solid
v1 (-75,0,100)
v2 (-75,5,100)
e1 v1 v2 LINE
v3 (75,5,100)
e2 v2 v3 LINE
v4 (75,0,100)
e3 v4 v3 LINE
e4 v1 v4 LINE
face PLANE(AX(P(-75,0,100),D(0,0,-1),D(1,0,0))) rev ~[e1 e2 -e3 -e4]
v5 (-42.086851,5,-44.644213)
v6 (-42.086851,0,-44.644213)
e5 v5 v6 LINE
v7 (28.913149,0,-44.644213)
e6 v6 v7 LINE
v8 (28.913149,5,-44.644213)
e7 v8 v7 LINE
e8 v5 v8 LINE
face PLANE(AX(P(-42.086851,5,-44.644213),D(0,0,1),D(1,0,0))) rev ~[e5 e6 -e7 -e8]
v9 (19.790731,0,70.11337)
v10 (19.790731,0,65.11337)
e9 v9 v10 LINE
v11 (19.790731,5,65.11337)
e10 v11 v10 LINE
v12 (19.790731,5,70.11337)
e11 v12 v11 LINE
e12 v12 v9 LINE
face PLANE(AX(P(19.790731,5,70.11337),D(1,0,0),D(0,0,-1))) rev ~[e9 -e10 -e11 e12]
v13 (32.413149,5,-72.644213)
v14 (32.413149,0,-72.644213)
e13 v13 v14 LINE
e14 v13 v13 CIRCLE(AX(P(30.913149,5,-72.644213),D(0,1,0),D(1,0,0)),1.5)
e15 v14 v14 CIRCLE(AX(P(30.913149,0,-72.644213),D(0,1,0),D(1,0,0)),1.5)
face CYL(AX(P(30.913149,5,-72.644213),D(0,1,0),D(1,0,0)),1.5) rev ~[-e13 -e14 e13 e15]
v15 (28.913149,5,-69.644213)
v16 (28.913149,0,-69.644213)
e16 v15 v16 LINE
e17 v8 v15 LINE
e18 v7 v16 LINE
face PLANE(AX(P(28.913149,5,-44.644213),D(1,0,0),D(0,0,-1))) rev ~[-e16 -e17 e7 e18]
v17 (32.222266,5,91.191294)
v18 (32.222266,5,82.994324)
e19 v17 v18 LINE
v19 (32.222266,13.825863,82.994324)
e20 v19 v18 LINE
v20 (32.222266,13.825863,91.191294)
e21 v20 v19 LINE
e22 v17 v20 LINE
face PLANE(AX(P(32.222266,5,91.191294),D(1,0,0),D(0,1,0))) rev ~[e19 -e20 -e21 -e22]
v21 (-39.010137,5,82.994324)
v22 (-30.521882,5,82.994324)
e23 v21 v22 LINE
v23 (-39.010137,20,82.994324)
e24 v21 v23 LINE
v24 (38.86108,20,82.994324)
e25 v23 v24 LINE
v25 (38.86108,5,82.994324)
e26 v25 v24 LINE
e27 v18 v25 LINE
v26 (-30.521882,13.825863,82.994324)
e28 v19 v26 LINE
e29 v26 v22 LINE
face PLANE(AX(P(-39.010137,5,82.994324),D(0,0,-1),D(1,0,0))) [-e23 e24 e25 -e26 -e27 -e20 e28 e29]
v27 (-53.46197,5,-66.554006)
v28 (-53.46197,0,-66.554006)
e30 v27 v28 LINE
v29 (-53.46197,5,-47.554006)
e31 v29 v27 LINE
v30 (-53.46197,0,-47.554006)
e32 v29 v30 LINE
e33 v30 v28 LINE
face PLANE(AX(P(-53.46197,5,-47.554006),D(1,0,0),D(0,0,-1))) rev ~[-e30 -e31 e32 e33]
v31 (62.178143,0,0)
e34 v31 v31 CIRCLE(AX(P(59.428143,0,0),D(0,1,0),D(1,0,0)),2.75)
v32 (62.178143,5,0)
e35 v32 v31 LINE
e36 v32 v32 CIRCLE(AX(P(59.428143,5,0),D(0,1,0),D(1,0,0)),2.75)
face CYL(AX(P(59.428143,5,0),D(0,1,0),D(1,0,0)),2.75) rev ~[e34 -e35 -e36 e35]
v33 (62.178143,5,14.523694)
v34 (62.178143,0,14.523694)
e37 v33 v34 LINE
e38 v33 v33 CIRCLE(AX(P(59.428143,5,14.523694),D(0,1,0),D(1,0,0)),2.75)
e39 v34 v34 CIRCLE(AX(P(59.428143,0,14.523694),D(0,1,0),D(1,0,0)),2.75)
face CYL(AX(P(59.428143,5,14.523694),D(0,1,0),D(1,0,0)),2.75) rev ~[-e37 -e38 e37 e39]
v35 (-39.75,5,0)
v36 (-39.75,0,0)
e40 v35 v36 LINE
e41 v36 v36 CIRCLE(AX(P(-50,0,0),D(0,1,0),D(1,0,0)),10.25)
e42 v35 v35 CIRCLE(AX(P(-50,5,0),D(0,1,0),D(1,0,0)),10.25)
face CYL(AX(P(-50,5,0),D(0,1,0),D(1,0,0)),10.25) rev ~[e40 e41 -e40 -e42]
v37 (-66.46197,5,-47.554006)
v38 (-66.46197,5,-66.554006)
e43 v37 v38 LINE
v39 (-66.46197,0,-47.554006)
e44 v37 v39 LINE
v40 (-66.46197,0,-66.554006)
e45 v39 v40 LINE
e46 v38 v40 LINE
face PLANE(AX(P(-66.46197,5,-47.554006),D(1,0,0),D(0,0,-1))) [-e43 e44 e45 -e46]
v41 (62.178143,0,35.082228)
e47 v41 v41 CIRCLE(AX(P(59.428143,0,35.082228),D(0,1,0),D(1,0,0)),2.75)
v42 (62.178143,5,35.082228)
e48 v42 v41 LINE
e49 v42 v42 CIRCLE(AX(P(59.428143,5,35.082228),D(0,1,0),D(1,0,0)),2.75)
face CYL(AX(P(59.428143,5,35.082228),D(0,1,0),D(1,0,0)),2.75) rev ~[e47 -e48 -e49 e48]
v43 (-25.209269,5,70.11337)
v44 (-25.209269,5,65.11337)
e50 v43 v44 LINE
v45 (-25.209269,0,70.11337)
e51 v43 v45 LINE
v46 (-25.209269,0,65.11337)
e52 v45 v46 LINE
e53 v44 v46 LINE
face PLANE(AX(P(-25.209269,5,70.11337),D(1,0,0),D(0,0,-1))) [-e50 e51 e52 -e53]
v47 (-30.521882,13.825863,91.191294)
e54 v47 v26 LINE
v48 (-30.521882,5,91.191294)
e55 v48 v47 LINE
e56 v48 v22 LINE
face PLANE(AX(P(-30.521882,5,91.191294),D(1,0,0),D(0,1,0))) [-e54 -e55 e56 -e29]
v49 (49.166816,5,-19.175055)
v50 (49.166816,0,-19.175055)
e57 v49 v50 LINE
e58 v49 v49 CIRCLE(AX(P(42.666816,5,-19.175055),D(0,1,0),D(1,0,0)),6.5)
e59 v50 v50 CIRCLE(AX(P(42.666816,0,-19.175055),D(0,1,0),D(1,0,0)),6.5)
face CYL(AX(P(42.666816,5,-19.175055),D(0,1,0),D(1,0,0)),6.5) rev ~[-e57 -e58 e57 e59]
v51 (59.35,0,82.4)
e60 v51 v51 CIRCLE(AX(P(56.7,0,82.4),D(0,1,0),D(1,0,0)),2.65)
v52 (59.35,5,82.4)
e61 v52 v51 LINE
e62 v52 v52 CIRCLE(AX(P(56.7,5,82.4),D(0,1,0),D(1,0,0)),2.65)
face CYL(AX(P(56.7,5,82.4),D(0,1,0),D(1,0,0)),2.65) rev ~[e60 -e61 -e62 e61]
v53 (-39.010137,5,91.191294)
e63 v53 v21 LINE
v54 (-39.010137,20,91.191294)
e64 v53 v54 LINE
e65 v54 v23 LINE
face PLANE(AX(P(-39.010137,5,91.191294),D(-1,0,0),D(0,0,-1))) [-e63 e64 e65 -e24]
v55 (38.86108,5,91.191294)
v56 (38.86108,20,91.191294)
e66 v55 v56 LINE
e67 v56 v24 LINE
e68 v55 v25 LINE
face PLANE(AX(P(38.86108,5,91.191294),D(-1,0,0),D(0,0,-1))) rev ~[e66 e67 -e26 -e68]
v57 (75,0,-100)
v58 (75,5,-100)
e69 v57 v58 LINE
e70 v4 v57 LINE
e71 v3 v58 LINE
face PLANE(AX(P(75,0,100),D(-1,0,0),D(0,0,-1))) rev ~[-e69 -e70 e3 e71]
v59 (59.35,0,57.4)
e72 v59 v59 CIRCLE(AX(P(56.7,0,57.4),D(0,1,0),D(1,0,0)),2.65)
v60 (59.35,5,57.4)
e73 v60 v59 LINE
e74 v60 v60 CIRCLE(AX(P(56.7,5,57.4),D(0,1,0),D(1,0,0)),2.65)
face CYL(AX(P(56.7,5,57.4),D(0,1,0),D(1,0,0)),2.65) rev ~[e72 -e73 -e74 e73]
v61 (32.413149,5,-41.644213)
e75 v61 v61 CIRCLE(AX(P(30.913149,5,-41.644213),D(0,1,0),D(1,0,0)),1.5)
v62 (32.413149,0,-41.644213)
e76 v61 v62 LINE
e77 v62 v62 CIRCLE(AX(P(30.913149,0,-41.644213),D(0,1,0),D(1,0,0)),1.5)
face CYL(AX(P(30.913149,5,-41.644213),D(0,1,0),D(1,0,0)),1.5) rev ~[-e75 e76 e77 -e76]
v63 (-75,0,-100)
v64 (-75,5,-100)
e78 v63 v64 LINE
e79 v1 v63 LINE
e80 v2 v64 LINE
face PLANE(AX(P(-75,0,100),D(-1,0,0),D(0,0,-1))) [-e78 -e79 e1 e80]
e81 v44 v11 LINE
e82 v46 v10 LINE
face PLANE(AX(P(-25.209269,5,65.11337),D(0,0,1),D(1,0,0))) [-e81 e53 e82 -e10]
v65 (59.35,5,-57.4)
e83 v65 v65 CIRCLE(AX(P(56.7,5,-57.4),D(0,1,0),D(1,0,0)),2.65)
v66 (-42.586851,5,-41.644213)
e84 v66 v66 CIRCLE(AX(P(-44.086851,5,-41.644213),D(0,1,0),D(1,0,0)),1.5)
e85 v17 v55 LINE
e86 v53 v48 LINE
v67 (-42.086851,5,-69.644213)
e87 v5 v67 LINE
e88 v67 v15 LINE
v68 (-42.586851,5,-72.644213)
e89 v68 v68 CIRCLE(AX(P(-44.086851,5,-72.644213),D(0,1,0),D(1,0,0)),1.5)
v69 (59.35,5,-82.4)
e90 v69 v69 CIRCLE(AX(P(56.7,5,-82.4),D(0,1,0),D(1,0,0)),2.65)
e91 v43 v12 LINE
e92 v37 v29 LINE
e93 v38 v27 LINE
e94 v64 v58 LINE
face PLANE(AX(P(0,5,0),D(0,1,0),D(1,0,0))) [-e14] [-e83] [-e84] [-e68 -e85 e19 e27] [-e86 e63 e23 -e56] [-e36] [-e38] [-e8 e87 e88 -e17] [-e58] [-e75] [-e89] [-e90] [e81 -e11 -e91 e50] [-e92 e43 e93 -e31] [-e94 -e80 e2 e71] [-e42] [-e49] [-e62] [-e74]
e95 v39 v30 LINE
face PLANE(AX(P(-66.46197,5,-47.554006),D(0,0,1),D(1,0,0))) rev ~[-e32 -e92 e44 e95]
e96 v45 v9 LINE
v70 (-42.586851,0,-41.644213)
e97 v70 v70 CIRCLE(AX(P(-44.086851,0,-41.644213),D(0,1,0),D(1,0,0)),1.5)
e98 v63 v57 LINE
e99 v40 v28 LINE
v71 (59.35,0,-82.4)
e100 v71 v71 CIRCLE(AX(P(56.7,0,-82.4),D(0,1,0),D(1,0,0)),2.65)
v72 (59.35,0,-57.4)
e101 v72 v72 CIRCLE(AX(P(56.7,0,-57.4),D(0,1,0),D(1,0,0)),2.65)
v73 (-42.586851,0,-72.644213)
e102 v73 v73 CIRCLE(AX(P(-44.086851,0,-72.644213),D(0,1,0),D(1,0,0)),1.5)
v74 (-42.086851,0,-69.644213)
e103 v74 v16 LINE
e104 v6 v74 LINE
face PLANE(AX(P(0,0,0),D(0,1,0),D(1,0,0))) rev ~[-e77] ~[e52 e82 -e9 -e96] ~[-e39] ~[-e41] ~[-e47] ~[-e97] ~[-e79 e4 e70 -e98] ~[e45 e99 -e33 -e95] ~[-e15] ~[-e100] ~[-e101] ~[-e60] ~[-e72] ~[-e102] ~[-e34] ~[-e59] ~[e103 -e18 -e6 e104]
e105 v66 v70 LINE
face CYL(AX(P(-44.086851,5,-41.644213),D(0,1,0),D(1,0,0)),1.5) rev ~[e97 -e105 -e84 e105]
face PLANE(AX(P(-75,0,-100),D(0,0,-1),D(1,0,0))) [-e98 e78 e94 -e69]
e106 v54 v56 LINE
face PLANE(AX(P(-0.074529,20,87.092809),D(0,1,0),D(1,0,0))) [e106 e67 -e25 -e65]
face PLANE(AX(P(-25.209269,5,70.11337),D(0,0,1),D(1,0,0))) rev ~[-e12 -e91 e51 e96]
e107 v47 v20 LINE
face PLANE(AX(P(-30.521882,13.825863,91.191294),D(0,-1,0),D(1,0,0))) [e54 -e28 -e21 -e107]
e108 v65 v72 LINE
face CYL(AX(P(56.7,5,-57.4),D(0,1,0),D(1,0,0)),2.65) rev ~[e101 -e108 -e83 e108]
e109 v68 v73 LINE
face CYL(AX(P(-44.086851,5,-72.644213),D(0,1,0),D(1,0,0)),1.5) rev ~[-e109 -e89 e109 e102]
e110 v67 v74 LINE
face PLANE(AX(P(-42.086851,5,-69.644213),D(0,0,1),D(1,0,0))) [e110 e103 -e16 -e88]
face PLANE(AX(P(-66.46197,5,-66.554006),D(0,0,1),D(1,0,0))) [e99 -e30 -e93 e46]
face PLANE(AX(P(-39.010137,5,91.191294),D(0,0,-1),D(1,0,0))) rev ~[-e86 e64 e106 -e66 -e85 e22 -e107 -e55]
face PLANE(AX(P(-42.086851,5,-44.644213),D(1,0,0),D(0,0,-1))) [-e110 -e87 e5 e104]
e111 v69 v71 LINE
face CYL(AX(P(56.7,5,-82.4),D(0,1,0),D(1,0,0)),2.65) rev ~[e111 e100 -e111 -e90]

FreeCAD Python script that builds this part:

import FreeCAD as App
import Part
import Sketcher

V = App.Vector

doc = App.newDocument("Part")
body = doc.addObject("PartDesign::Body", "Body")

# Sketch on XZ plane
sketch1 = body.newObject("Sketcher::SketchObject", "Sketch")
sketch1.AttachmentSupport = (doc.getObject("XZ_Plane"), [""])
sketch1.MapMode = "FlatFace"
sketch1.addGeometry([
    Part.LineSegment(V(-75, -100, 0), V(-75, 100, 0)),
    Part.LineSegment(V(-75, 100, 0), V(75, 100, 0)),
    Part.LineSegment(V(75, 100, 0), V(75, -100, 0)),
    Part.LineSegment(V(75, -100, 0), V(-75, -100, 0)),
], False)
sketch1.addConstraint([
    Sketcher.Constraint("Coincident", 0, 2, 1, 1),
    Sketcher.Constraint("Coincident", 1, 2, 2, 1),
    Sketcher.Constraint("Coincident", 2, 2, 3, 1),
    Sketcher.Constraint("Coincident", 3, 2, 0, 1),
    Sketcher.Constraint("Vertical", 0),
    Sketcher.Constraint("Horizontal", 1),
    Sketcher.Constraint("Vertical", 2),
    Sketcher.Constraint("Horizontal", 3),
    Sketcher.Constraint("Symmetric", 0, 2, 2, 2, -1, 1),
    Sketcher.Constraint("DistanceX", 1, 1, 1, 2, 150.0),
    Sketcher.Constraint("DistanceY", 0, 1, 0, 2, 200.0),
])
pad1 = body.newObject("PartDesign::Pad", "Pad")
pad1.Profile = sketch1
pad1.Length = 5
pad1.Reversed = True

# Sketch on XZ plane
sketch2 = body.newObject("Sketcher::SketchObject", "Sketch001")
sketch2.AttachmentSupport = (doc.getObject("XZ_Plane"), [""])
sketch2.MapMode = "FlatFace"
sketch2.AttachmentOffset = App.Placement(V(0, 0, -5), App.Rotation())
sketch2.addGeometry(Part.Circle(V(-50, 0, 0), V(0, 0, 1), 10), False)
sketch2.addConstraint([
    Sketcher.Constraint("PointOnObject", 0, 3, -1),
    Sketcher.Constraint("Diameter", 0, 20.5),
    Sketcher.Constraint("DistanceX", 0, 3, -1, 1, 50.0),
])
pocket1 = body.newObject("PartDesign::Pocket", "Pocket")
pocket1.Profile = sketch2
pocket1.Type = "UpToFirst"
pocket1.Reversed = True

# Sketch on XZ plane
sketch3 = body.newObject("Sketcher::SketchObject", "Sketch002")
sketch3.AttachmentSupport = (doc.getObject("XZ_Plane"), [""])
sketch3.MapMode = "FlatFace"
sketch3.AttachmentOffset = App.Placement(V(0, 0, -5), App.Rotation())
sketch3.addGeometry(Part.Circle(V(56.7, -82.4, 0), V(0, 0, 1), 2.6), False)
sketch3.addConstraint([
    Sketcher.Constraint("Diameter", 0, 5.3),
    Sketcher.Constraint("DistanceX", -1, 1, 0, 3, 56.7),
    Sketcher.Constraint("DistanceY", 0, 3, -1, 1, 82.4),
])
pocket2 = body.newObject("PartDesign::Pocket", "Pocket001")
pocket2.Profile = sketch3
pocket2.Type = "UpToFirst"
pocket2.Reversed = True

# Sketch on XZ plane
sketch4 = body.newObject("Sketcher::SketchObject", "Sketch003")
sketch4.AttachmentSupport = (doc.getObject("XZ_Plane"), [""])
sketch4.MapMode = "FlatFace"
sketch4.AttachmentOffset = App.Placement(V(0, 0, -5), App.Rotation())
sketch4.addGeometry(Part.Circle(V(56.7, -57.4, 0), V(0, 0, 1), 2.6), False)
sketch4.addConstraint([
    Sketcher.Constraint("Diameter", 0, 5.3),
    Sketcher.Constraint("DistanceX", -1, 1, 0, 3, 56.7),
    Sketcher.Constraint("DistanceY", 0, 3, -1, 1, 57.4),
])
pocket3 = body.newObject("PartDesign::Pocket", "Pocket002")
pocket3.Profile = sketch4
pocket3.Type = "UpToFirst"
pocket3.Reversed = True

# Sketch on XZ plane
sketch5 = body.newObject("Sketcher::SketchObject", "Sketch004")
sketch5.AttachmentSupport = (doc.getObject("XZ_Plane"), [""])
sketch5.MapMode = "FlatFace"
sketch5.AttachmentOffset = App.Placement(V(0, 0, -5), App.Rotation())
sketch5.addGeometry(Part.Circle(V(56.7, 57.4, 0), V(0, 0, 1), 2.6), False)
sketch5.addConstraint([
    Sketcher.Constraint("Diameter", 0, 5.3),
    Sketcher.Constraint("DistanceX", -1, 1, 0, 3, 56.7),
    Sketcher.Constraint("DistanceY", -1, 1, 0, 3, 57.4),
])
pocket4 = body.newObject("PartDesign::Pocket", "Pocket003")
pocket4.Profile = sketch5
pocket4.Type = "UpToFirst"
pocket4.Reversed = True

# Sketch on XZ plane
sketch6 = body.newObject("Sketcher::SketchObject", "Sketch005")
sketch6.AttachmentSupport = (doc.getObject("XZ_Plane"), [""])
sketch6.MapMode = "FlatFace"
sketch6.AttachmentOffset = App.Placement(V(0, 0, -5), App.Rotation())
sketch6.addGeometry(Part.Circle(V(56.7, 82.4, 0), V(0, 0, 1), 2.6), False)
sketch6.addConstraint([
    Sketcher.Constraint("Diameter", 0, 5.3),
    Sketcher.Constraint("DistanceX", -1, 1, 0, 3, 56.7),
    Sketcher.Constraint("DistanceY", -1, 1, 0, 3, 82.4),
])
pocket5 = body.newObject("PartDesign::Pocket", "Pocket004")
pocket5.Profile = sketch6
pocket5.Type = "UpToFirst"
pocket5.Reversed = True

# Sketch on XZ plane
sketch7 = body.newObject("Sketcher::SketchObject", "Sketch006")
sketch7.AttachmentSupport = (doc.getObject("XZ_Plane"), [""])
sketch7.MapMode = "FlatFace"
sketch7.AttachmentOffset = App.Placement(V(0, 0, -5), App.Rotation())
sketch7.addGeometry([
    Part.Circle(V(-44.1, -72.6, 0), V(0, 0, 1), 1.5),  # 0
    Part.Circle(V(-44.1, -41.6, 0), V(0, 0, 1), 1.5),  # 1
    Part.Circle(V(30.9, -72.6, 0), V(0, 0, 1), 1.5),  # 2
    Part.Circle(V(30.9, -41.6, 0), V(0, 0, 1), 1.5),  # 3
    Part.Circle(V(42.7, -19.2, 0), V(0, 0, 1), 6.5),  # 4
    Part.Circle(V(59.4, 0, 0), V(0, 0, 1), 2.8),  # 5
    Part.Circle(V(59.4, 14.5, 0), V(0, 0, 1), 2.8),  # 6
    Part.Circle(V(59.4, 35.1, 0), V(0, 0, 1), 2.8),  # 7
    Part.LineSegment(V(-42.1, -69.6, 0), V(-42.1, -44.6, 0)),  # 8
    Part.LineSegment(V(-42.1, -44.6, 0), V(28.9, -44.6, 0)),  # 9
    Part.LineSegment(V(28.9, -44.6, 0), V(28.9, -69.6, 0)),  # 10
    Part.LineSegment(V(28.9, -69.6, 0), V(-42.1, -69.6, 0)),  # 11
    Part.LineSegment(V(-25.2, 65.1, 0), V(-25.2, 70.1, 0)),  # 12
    Part.LineSegment(V(-25.2, 70.1, 0), V(19.8, 70.1, 0)),  # 13
    Part.LineSegment(V(19.8, 70.1, 0), V(19.8, 65.1, 0)),  # 14
    Part.LineSegment(V(19.8, 65.1, 0), V(-25.2, 65.1, 0)),  # 15
    Part.LineSegment(V(-66.5, -66.6, 0), V(-66.5, -47.6, 0)),  # 16
    Part.LineSegment(V(-66.5, -47.6, 0), V(-53.5, -47.6, 0)),  # 17
    Part.LineSegment(V(-53.5, -47.6, 0), V(-53.5, -66.6, 0)),  # 18
    Part.LineSegment(V(-53.5, -66.6, 0), V(-66.5, -66.6, 0)),  # 19
], False)
sketch7.addConstraint([
    Sketcher.Constraint("Coincident", 8, 2, 9, 1),
    Sketcher.Constraint("Coincident", 9, 2, 10, 1),
    Sketcher.Constraint("Coincident", 10, 2, 11, 1),
    Sketcher.Constraint("Coincident", 11, 2, 8, 1),
    Sketcher.Constraint("Coincident", 12, 2, 13, 1),
    Sketcher.Constraint("Coincident", 13, 2, 14, 1),
    Sketcher.Constraint("Coincident", 14, 2, 15, 1),
    Sketcher.Constraint("Coincident", 15, 2, 12, 1),
    Sketcher.Constraint("Coincident", 16, 2, 17, 1),
    Sketcher.Constraint("Coincident", 17, 2, 18, 1),
    Sketcher.Constraint("Coincident", 18, 2, 19, 1),
    Sketcher.Constraint("Coincident", 19, 2, 16, 1),
    Sketcher.Constraint("Vertical", 8),
    Sketcher.Constraint("Horizontal", 9),
    Sketcher.Constraint("Vertical", 10),
    Sketcher.Constraint("Horizontal", 11),
    Sketcher.Constraint("Vertical", 12),
    Sketcher.Constraint("Horizontal", 13),
    Sketcher.Constraint("Vertical", 14),
    Sketcher.Constraint("Horizontal", 15),
    Sketcher.Constraint("Vertical", 16),
    Sketcher.Constraint("Horizontal", 17),
    Sketcher.Constraint("Vertical", 18),
    Sketcher.Constraint("Horizontal", 19),
    Sketcher.Constraint("Equal", 0, 1),
    Sketcher.Constraint("Equal", 1, 2),
    Sketcher.Constraint("Equal", 2, 3),
    Sketcher.Constraint("Equal", 5, 6),
    Sketcher.Constraint("Equal", 6, 7),
    Sketcher.Constraint("PointOnObject", 5, 3, -1),
    Sketcher.Constraint("Horizontal", 0, 3, 2, 3),
    Sketcher.Constraint("Horizontal", 1, 3, 3, 3),
    Sketcher.Constraint("Vertical", 0, 3, 1, 3),
    Sketcher.Constraint("Vertical", 2, 3, 3, 3),
    Sketcher.Constraint("Vertical", 5, 3, 6, 3),
    Sketcher.Constraint("Vertical", 6, 3, 7, 3),
    Sketcher.Constraint("Diameter", 0, 3.0),
    Sketcher.Constraint("Diameter", 4, 13.0),
    Sketcher.Constraint("Diameter", 5, 5.5),
    Sketcher.Constraint("DistanceX", 9, 1, 9, 2, 71.0),
    Sketcher.Constraint("DistanceX", 13, 1, 13, 2, 45.0),
    Sketcher.Constraint("DistanceX", 17, 1, 17, 2, 13.0),
    Sketcher.Constraint("DistanceY", 8, 1, 8, 2, 25.0),
    Sketcher.Constraint("DistanceY", 12, 1, 12, 2, 5.0),
    Sketcher.Constraint("DistanceY", 16, 1, 16, 2, 19.0),
    Sketcher.Constraint("DistanceY", 0, 3, 1, 3, 31.0),
    Sketcher.Constraint("DistanceX", 0, 3, 2, 3, 75.0),
    Sketcher.Constraint("DistanceX", 1, 3, 8, 2, 2.0),
    Sketcher.Constraint("DistanceY", 8, 2, 1, 3, 3.0),
    Sketcher.Constraint("DistanceX", 0, 3, -1, 1, 44.086851),
    Sketcher.Constraint("DistanceX", 12, 2, -1, 1, 25.209269),
    Sketcher.Constraint("DistanceY", -1, 1, 12, 2, 70.11337),
    Sketcher.Constraint("DistanceX", 16, 2, -1, 1, 66.46197),
    Sketcher.Constraint("DistanceY", 4, 3, 6, 3, 33.698749),
    Sketcher.Constraint("DistanceY", 3, 3, 7, 3, 76.726441),
    Sketcher.Constraint("DistanceY", 0, 3, -1, 1, 72.644213),
    Sketcher.Constraint("DistanceX", -1, 1, 4, 3, 42.666816),
    Sketcher.Constraint("DistanceY", 4, 3, -1, 1, 19.175055),
    Sketcher.Constraint("DistanceX", -1, 1, 5, 3, 59.428143),
    Sketcher.Constraint("DistanceY", 16, 2, -1, 1, 47.554006),
])
pocket6 = body.newObject("PartDesign::Pocket", "Pocket005")
pocket6.Profile = sketch7
pocket6.Length = 10
pocket6.Reversed = True

# Sketch on XZ plane
sketch8 = body.newObject("Sketcher::SketchObject", "Sketch007")
sketch8.AttachmentSupport = (doc.getObject("XZ_Plane"), [""])
sketch8.MapMode = "FlatFace"
sketch8.AttachmentOffset = App.Placement(V(0, 0, -5), App.Rotation())
sketch8.addGeometry([
    Part.LineSegment(V(-39, 83, 0), V(-39, 91, 0)),
    Part.LineSegment(V(-39, 91, 0), V(39, 91, 0)),
    Part.LineSegment(V(39, 91, 0), V(39, 83, 0)),
    Part.LineSegment(V(39, 83, 0), V(-39, 83, 0)),
], False)
sketch8.addConstraint([
    Sketcher.Constraint("Coincident", 0, 2, 1, 1),
    Sketcher.Constraint("Coincident", 1, 2, 2, 1),
    Sketcher.Constraint("Coincident", 2, 2, 3, 1),
    Sketcher.Constraint("Coincident", 3, 2, 0, 1),
    Sketcher.Constraint("Vertical", 0),
    Sketcher.Constraint("Horizontal", 1),
    Sketcher.Constraint("Vertical", 2),
    Sketcher.Constraint("Horizontal", 3),
    Sketcher.Constraint("DistanceY", 0, 1, 0, 2, 8.19697),
    Sketcher.Constraint("DistanceX", 1, 1, 1, 2, 77.871217),
    Sketcher.Constraint("DistanceX", -1, 1, 1, 2, 38.86108),
    Sketcher.Constraint("DistanceY", -1, 1, 0, 2, 91.191294),
])
pad2 = body.newObject("PartDesign::Pad", "Pad001")
pad2.Profile = sketch8
pad2.Length = 15
pad2.Reversed = True

# Sketch on XY plane
sketch9 = body.newObject("Sketcher::SketchObject", "Sketch008")
sketch9.AttachmentSupport = (doc.getObject("XY_Plane"), [""])
sketch9.MapMode = "FlatFace"
sketch9.AttachmentOffset = App.Placement(V(0, 0, 91.191294), App.Rotation())
sketch9.addGeometry([
    Part.LineSegment(V(-31, 14, 0), V(-31, 5, 0)),
    Part.LineSegment(V(-31, 5, 0), V(32, 5, 0)),
    Part.LineSegment(V(32, 5, 0), V(32, 14, 0)),
    Part.LineSegment(V(32, 14, 0), V(-31, 14, 0)),
], False)
sketch9.addConstraint([
    Sketcher.Constraint("Coincident", 0, 2, 1, 1),
    Sketcher.Constraint("Coincident", 1, 2, 2, 1),
    Sketcher.Constraint("Coincident", 2, 2, 3, 1),
    Sketcher.Constraint("Coincident", 3, 2, 0, 1),
    Sketcher.Constraint("Vertical", 0),
    Sketcher.Constraint("Horizontal", 1),
    Sketcher.Constraint("Vertical", 2),
    Sketcher.Constraint("Horizontal", 3),
    Sketcher.Constraint("DistanceY", -1, 1, 0, 2, 5.0),
    Sketcher.Constraint("DistanceX", 1, 1, 1, 2, 62.744148),
    Sketcher.Constraint("DistanceY", 0, 2, 0, 1, 8.825863),
    Sketcher.Constraint("DistanceX", 0, 2, -1, 1, 30.521882),
])
pocket7 = body.newObject("PartDesign::Pocket", "Pocket006")
pocket7.Profile = sketch9
pocket7.Length = 15

doc.recompute()
